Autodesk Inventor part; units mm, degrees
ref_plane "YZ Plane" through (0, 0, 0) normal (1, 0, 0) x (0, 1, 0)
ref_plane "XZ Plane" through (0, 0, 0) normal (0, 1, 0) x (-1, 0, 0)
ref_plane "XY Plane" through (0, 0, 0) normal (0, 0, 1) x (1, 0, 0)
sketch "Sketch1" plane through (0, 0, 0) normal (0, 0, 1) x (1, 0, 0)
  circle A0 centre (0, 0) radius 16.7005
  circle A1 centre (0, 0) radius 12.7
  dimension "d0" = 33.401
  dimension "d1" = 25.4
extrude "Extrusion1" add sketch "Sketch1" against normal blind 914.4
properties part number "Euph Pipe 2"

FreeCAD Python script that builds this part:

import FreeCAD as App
import Part
import Sketcher
Q = App.Units.Quantity

doc = App.newDocument("Part")
body = doc.addObject("PartDesign::Body", "Body")

# Sketch on XY plane
sketch1 = body.newObject("Sketcher::SketchObject", "Sketch")
sketch1.AttachmentSupport = (doc.getObject("XY_Plane"), [""])
sketch1.MapMode = "FlatFace"
sketch1.addGeometry([
    Part.Circle(App.Vector(0, 0, 0), App.Vector(0, 0, 1), 17),
    Part.Circle(App.Vector(0, 0, 0), App.Vector(0, 0, 1), 13),
], False)
sketch1.addConstraint([
    Sketcher.Constraint("Coincident", 0, 3, -1, 1),
    Sketcher.Constraint("Coincident", 1, 3, -1, 1),
    Sketcher.Constraint("Diameter", 1, Q("1 in")),
    Sketcher.Constraint("Diameter", 0, Q("1.315 in")),
])
pad1 = body.newObject("PartDesign::Pad", "Pad")
pad1.Profile = sketch1
pad1.Length = Q("36 in")
pad1.Reversed = True

doc.recompute()
